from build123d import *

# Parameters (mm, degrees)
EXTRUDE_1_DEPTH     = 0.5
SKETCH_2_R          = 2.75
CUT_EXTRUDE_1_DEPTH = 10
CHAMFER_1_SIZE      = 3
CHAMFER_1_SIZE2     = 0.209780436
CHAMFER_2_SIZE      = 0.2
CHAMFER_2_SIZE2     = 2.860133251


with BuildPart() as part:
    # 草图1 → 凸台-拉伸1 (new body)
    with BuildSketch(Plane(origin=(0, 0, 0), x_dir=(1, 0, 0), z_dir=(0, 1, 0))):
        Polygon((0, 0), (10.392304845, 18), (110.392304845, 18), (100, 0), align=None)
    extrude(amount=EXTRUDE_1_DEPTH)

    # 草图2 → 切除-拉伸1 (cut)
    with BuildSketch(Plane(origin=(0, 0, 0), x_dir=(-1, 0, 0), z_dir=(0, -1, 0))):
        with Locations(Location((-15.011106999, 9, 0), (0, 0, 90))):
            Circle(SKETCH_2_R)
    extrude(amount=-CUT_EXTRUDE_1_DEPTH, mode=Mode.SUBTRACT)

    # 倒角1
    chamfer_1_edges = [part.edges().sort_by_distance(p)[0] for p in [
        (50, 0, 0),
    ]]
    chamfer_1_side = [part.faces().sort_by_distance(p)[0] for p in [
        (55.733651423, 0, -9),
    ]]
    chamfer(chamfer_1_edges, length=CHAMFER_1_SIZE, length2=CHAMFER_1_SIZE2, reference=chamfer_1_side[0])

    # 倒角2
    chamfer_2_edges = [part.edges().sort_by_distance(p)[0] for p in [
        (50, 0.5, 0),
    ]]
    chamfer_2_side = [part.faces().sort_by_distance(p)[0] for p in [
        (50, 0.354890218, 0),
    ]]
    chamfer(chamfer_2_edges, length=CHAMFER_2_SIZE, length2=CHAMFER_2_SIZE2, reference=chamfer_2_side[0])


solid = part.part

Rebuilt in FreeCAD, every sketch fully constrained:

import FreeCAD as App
import Part
import Sketcher
Q = App.Units.Quantity


def edges_at(feature, points):
    """Names of the edges that pass closest to the given points."""
    edges = feature.Shape.Edges
    near = lambda p: min(range(len(edges)), key=lambda i: edges[i].distToShape(Part.Vertex(*p))[0])
    return sorted({f"Edge{near(p) + 1}" for p in points})

doc = App.newDocument("Part")
body = doc.addObject("PartDesign::Body", "Body")

sketch1 = doc.addObject("Sketcher::SketchObject", "Sketch")
body.addObject(sketch1)
sketch1.AttachmentSupport = (doc.XZ_Plane, [""])
sketch1.MapMode = "FlatFace"
sketch1.addGeometry([
    Part.LineSegment(App.Vector(10, -18, 0), App.Vector(0, 0, 0)),
    Part.LineSegment(App.Vector(0, 0, 0), App.Vector(100, 0, 0)),
    Part.LineSegment(App.Vector(100, 0, 0), App.Vector(110, -18, 0)),
    Part.LineSegment(App.Vector(110, -18, 0), App.Vector(10, -18, 0)),
], False)
sketch1.addConstraint([
    Sketcher.Constraint("Coincident", 0, 2, 1, 1),
    Sketcher.Constraint("Coincident", 1, 2, 2, 1),
    Sketcher.Constraint("Coincident", 2, 2, 3, 1),
    Sketcher.Constraint("Coincident", 3, 2, 0, 1),
    Sketcher.Constraint("Horizontal", 1),
    Sketcher.Constraint("Horizontal", 3),
    Sketcher.Constraint("Coincident", 0, 2, -1, 1),
    Sketcher.Constraint("Parallel", 0, 2),
    Sketcher.Constraint("DistanceX", 1, 1, 1, 2, Q("100 mm")),
    Sketcher.Constraint("Angle", 0, Q("120 deg")),
    Sketcher.Constraint("DistanceY", 2, 2, -1, 1, Q("18 mm")),
])
pad1 = doc.addObject("PartDesign::Pad", "Pad")
body.addObject(pad1)
pad1.Profile = sketch1
pad1.Length = 0.5
pad1.Reversed = True

sketch2 = doc.addObject("Sketcher::SketchObject", "Sketch001")
body.addObject(sketch2)
sketch2.AttachmentSupport = (doc.XZ_Plane, [""])
sketch2.MapMode = "FlatFace"
sketch2.addGeometry(Part.Circle(App.Vector(15, -9, 0), App.Vector(0, 0, 1), 2.8), False)
sketch2.addConstraint([
    Sketcher.Constraint("Diameter", 0, Q("5.5 mm")),
    Sketcher.Constraint("DistanceY", 0, 3, -1, 1, Q("9 mm")),
    Sketcher.Constraint("DistanceX", -1, 1, 0, 3, Q("15.011107 mm")),
])
pocket1 = doc.addObject("PartDesign::Pocket", "Pocket")
body.addObject(pocket1)
pocket1.Profile = sketch2
pocket1.Length = 10
doc.recompute()

chamfer = doc.addObject("PartDesign::Chamfer", "Chamfer")
body.addObject(chamfer)
chamfer.Base = (pocket1, edges_at(pocket1, [(50, 0, 0)]))
chamfer.ChamferType = "Two distances"
chamfer.Size = 3
chamfer.Size2 = 0.20978
chamfer.FlipDirection = True
doc.recompute()

chamfer2 = doc.addObject("PartDesign::Chamfer", "Chamfer001")
body.addObject(chamfer2)
chamfer2.Base = (chamfer, edges_at(chamfer, [(50, 0.5, 0)]))
chamfer2.ChamferType = "Two distances"
chamfer2.Size = 0.2
chamfer2.Size2 = 2.860133

doc.recompute()
